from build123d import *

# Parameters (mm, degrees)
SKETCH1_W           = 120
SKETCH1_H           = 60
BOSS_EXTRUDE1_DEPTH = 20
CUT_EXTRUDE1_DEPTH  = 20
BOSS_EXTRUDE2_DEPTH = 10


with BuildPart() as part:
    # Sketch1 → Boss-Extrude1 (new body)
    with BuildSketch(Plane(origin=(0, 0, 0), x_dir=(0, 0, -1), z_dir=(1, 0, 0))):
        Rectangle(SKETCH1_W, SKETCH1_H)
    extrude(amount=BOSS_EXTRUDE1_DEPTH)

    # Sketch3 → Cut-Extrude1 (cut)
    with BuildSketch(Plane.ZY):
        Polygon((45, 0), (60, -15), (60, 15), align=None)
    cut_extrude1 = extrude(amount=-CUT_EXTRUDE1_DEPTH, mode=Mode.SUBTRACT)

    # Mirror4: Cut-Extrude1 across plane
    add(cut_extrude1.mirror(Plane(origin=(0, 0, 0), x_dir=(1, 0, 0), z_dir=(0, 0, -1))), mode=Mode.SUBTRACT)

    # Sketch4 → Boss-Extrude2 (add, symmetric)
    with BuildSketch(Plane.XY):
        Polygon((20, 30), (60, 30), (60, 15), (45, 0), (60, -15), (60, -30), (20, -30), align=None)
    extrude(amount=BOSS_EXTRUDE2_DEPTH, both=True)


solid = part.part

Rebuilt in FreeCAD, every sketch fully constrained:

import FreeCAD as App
import Part
import Sketcher
Q = App.Units.Quantity


def add_polygon(sketch, points):
    """Adds a closed chain of lines whose ends are joined by coincident constraints."""
    first, n = sketch.GeometryCount, len(points)
    for a, b in zip(points, points[1:] + points[:1]):
        sketch.addGeometry(Part.LineSegment(App.Vector(*a, 0), App.Vector(*b, 0)), False)
    for i in range(n):
        sketch.addConstraint(Sketcher.Constraint("Coincident", first + i, 2, first + (i + 1) % n, 1))

doc = App.newDocument("Part")
body = doc.addObject("PartDesign::Body", "Body")

sketch1 = body.newObject("Sketcher::SketchObject", "Sketch")
sketch1.AttachmentSupport = (doc.getObject("YZ_Plane"), [""])
sketch1.MapMode = "FlatFace"
add_polygon(sketch1, [(30, 60), (-30, 60), (-30, -60), (30, -60)])
sketch1.addConstraint([
    Sketcher.Constraint("Horizontal", 0),
    Sketcher.Constraint("Vertical", 1),
    Sketcher.Constraint("Horizontal", 2),
    Sketcher.Constraint("Vertical", 3),
    Sketcher.Constraint("Symmetric", 0, 2, 2, 2, -1, 1),
    Sketcher.Constraint("DistanceX", 0, 2, 0, 1, Q("60 mm")),
    Sketcher.Constraint("DistanceY", 1, 2, 1, 1, Q("120 mm")),
])
pad1 = body.newObject("PartDesign::Pad", "Pad")
pad1.Profile = sketch1
pad1.Length = 20

sketch2 = body.newObject("Sketcher::SketchObject", "Sketch001")
sketch2.AttachmentSupport = (doc.getObject("YZ_Plane"), [""])
sketch2.MapMode = "FlatFace"
add_polygon(sketch2, [(0, 45), (-15, 60), (15, 60)])
sketch2.addConstraint([
    Sketcher.Constraint("Horizontal", 1),
    Sketcher.Constraint("PointOnObject", 2, 2, -2),
    Sketcher.Constraint("Perpendicular", 0, 2),
    Sketcher.Constraint("Equal", 0, 2),
    Sketcher.Constraint("DistanceX", 1, 1, 1, 2, Q("30 mm")),
    Sketcher.Constraint("DistanceY", -1, 1, 0, 2, Q("60 mm")),
])
pocket1 = body.newObject("PartDesign::Pocket", "Pocket")
pocket1.Profile = sketch2
pocket1.Length = 20
pocket1.Reversed = True
doc.recompute()

mirrored = body.newObject("PartDesign::Mirrored", "Mirrored")
mirrored.Originals = [pocket1]
mirrored.MirrorPlane = (doc.getObject("XY_Plane"), [""])
body.Tip = mirrored

sketch3 = body.newObject("Sketcher::SketchObject", "Sketch002")
sketch3.AttachmentSupport = (doc.getObject("XY_Plane"), [""])
sketch3.MapMode = "FlatFace"
add_polygon(sketch3, [(60, 30), (20, 30), (20, -30), (60, -30), (60, -15), (45, 0), (60, 15)])
sketch3.addConstraint([
    Sketcher.Constraint("Horizontal", 0),
    Sketcher.Constraint("Vertical", 1),
    Sketcher.Constraint("Horizontal", 2),
    Sketcher.Constraint("Vertical", 3),
    Sketcher.Constraint("Vertical", 6),
    Sketcher.Constraint("Symmetric", 3, 2, 5, 2, -1),
    Sketcher.Constraint("PointOnObject", 4, 2, -1),
    Sketcher.Constraint("Perpendicular", 4, 5),
    Sketcher.Constraint("Equal", 3, 6),
    Sketcher.Constraint("DistanceX", 0, 2, 0, 1, Q("40 mm")),
    Sketcher.Constraint("DistanceY", 1, 2, 1, 1, Q("60 mm")),
    Sketcher.Constraint("DistanceY", 3, 1, 3, 2, Q("15 mm")),
    Sketcher.Constraint("DistanceX", -1, 1, 0, 2, Q("20 mm")),
])
pad2 = body.newObject("PartDesign::Pad", "Pad001")
pad2.Profile = sketch3
pad2.Length = 20
pad2.Midplane = True

doc.recompute()
